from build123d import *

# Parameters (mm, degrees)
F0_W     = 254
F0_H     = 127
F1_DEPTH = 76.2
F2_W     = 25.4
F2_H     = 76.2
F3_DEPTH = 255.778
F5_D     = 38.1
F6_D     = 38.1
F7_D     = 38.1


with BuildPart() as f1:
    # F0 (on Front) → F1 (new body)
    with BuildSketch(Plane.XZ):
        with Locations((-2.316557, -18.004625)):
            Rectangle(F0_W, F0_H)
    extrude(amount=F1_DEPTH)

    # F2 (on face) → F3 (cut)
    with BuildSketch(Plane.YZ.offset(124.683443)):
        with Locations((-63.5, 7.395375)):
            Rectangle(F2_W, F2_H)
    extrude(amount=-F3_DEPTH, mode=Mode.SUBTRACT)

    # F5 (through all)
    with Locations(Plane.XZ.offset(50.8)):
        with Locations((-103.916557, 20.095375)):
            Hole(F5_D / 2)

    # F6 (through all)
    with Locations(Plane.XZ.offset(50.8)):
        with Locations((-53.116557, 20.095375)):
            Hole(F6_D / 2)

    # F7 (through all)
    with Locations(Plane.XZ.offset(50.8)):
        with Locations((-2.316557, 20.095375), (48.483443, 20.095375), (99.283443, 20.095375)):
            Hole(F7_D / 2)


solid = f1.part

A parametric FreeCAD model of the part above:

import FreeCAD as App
import Part
import Sketcher
Q = App.Units.Quantity

doc = App.newDocument("Part")
params = doc.addObject("Spreadsheet::Sheet", "Params")
for row, (alias, value) in enumerate([
    ("sketch1_width", "10 in"),
    ("sketch1_height", "5 in"),
    ("pad1_length", "3 in"),
    ("sketch2_width", "1 in"),
    ("sketch2_height", "3 in"),
    ("pocket1_length", "10.07 in"),
    ("sketch3_diameter", "1.5 in"),
    ("hole_diameter", "1.5 in"),
    ("sketch4_diameter", "1.5 in"),
    ("hole2_diameter", "1.5 in"),
    ("sketch5_diameter", "1.5 in"),
    ("hole3_diameter", "1.5 in"),
], start=1):
    params.set(f"A{row}", alias)
    params.set(f"B{row}", "=" + value)
    params.setAlias(f"B{row}", alias)

body = doc.addObject("PartDesign::Body", "Body")

sketch1 = doc.addObject("Sketcher::SketchObject", "Sketch")
body.addObject(sketch1)
sketch1.AttachmentSupport = (doc.XZ_Plane, [""])
sketch1.MapMode = "FlatFace"
sketch1.addGeometry([
    Part.LineSegment(App.Vector(-129.316557, 45.495375, 0), App.Vector(-129.316557, -81.504625, 0)),
    Part.LineSegment(App.Vector(-129.316557, -81.504625, 0), App.Vector(124.683443, -81.504625, 0)),
    Part.LineSegment(App.Vector(124.683443, -81.504625, 0), App.Vector(124.683443, 45.495375, 0)),
    Part.LineSegment(App.Vector(124.683443, 45.495375, 0), App.Vector(-129.316557, 45.495375, 0)),
], False)
sketch1.addConstraint([
    Sketcher.Constraint("Coincident", 0, 2, 1, 1),
    Sketcher.Constraint("Coincident", 1, 2, 2, 1),
    Sketcher.Constraint("Coincident", 2, 2, 3, 1),
    Sketcher.Constraint("Coincident", 3, 2, 0, 1),
    Sketcher.Constraint("Vertical", 0),
    Sketcher.Constraint("Horizontal", 1),
    Sketcher.Constraint("Vertical", 2),
    Sketcher.Constraint("Horizontal", 3),
    Sketcher.Constraint("DistanceX", 1, 1, 1, 2, Q("10 in")),
    Sketcher.Constraint("DistanceY", 0, 2, 0, 1, Q("5 in")),
    Sketcher.Constraint("DistanceX", 0, 2, -1, 1, Q("129.316557 mm")),
    Sketcher.Constraint("DistanceY", 0, 2, -1, 1, Q("81.504625 mm")),
])
sketch1.setExpression("Constraints[8]", "Params.sketch1_width")
sketch1.setExpression("Constraints[9]", "Params.sketch1_height")
pad1 = doc.addObject("PartDesign::Pad", "Pad")
body.addObject(pad1)
pad1.Profile = sketch1
pad1.setExpression("Length", "Params.pad1_length")

sketch2 = doc.addObject("Sketcher::SketchObject", "Sketch001")
body.addObject(sketch2)
sketch2.AttachmentSupport = (doc.YZ_Plane, [""])
sketch2.MapMode = "FlatFace"
sketch2.AttachmentOffset = App.Placement(App.Vector(0, 0, 124.683443), App.Rotation())
sketch2.addGeometry([
    Part.LineSegment(App.Vector(-76.2, 45.495375, 0), App.Vector(-76.2, -30.704625, 0)),
    Part.LineSegment(App.Vector(-76.2, -30.704625, 0), App.Vector(-50.8, -30.704625, 0)),
    Part.LineSegment(App.Vector(-50.8, -30.704625, 0), App.Vector(-50.8, 45.495375, 0)),
    Part.LineSegment(App.Vector(-50.8, 45.495375, 0), App.Vector(-76.2, 45.495375, 0)),
], False)
sketch2.addConstraint([
    Sketcher.Constraint("Coincident", 0, 2, 1, 1),
    Sketcher.Constraint("Coincident", 1, 2, 2, 1),
    Sketcher.Constraint("Coincident", 2, 2, 3, 1),
    Sketcher.Constraint("Coincident", 3, 2, 0, 1),
    Sketcher.Constraint("Vertical", 0),
    Sketcher.Constraint("Horizontal", 1),
    Sketcher.Constraint("Vertical", 2),
    Sketcher.Constraint("Horizontal", 3),
    Sketcher.Constraint("DistanceX", 1, 1, 1, 2, Q("1 in")),
    Sketcher.Constraint("DistanceY", 0, 2, 0, 1, Q("3 in")),
    Sketcher.Constraint("DistanceX", 0, 2, -1, 1, Q("3 in")),
    Sketcher.Constraint("DistanceY", 0, 2, -1, 1, Q("30.704625 mm")),
])
sketch2.setExpression("Constraints[8]", "Params.sketch2_width")
sketch2.setExpression("Constraints[9]", "Params.sketch2_height")
pocket1 = doc.addObject("PartDesign::Pocket", "Pocket")
body.addObject(pocket1)
pocket1.Profile = sketch2
pocket1.setExpression("Length", "Params.pocket1_length")

sketch3 = doc.addObject("Sketcher::SketchObject", "Sketch002")
body.addObject(sketch3)
sketch3.AttachmentSupport = (doc.XZ_Plane, [""])
sketch3.MapMode = "FlatFace"
sketch3.AttachmentOffset = App.Placement(App.Vector(0, 0, 2 * 25.4), App.Rotation())
sketch3.addGeometry(Part.Circle(App.Vector(-103.916557, 20.095375, 0), App.Vector(0, 0, 1), 19.05), False)
sketch3.addConstraint([
    Sketcher.Constraint("Diameter", 0, Q("1.5 in")),
    Sketcher.Constraint("DistanceX", 0, 3, -1, 1, Q("103.916557 mm")),
    Sketcher.Constraint("DistanceY", -1, 1, 0, 3, Q("20.095375 mm")),
])
sketch3.setExpression("Constraints[0]", "Params.sketch3_diameter")
doc.recompute()
hole = doc.addObject("PartDesign::Hole", "Hole")
body.addObject(hole)
hole.Profile = sketch3
hole.ThreadType = "None"
hole.setExpression("Diameter", "Params.hole_diameter")
hole.DepthType = "ThroughAll"

sketch4 = doc.addObject("Sketcher::SketchObject", "Sketch003")
body.addObject(sketch4)
sketch4.AttachmentSupport = (doc.XZ_Plane, [""])
sketch4.MapMode = "FlatFace"
sketch4.AttachmentOffset = App.Placement(App.Vector(0, 0, 2 * 25.4), App.Rotation())
sketch4.addGeometry(Part.Circle(App.Vector(-53.116557, 20.095375, 0), App.Vector(0, 0, 1), 19.05), False)
sketch4.addConstraint([
    Sketcher.Constraint("Diameter", 0, Q("1.5 in")),
    Sketcher.Constraint("DistanceX", 0, 3, -1, 1, Q("53.116557 mm")),
    Sketcher.Constraint("DistanceY", -1, 1, 0, 3, Q("20.095375 mm")),
])
sketch4.setExpression("Constraints[0]", "Params.sketch4_diameter")
doc.recompute()
hole2 = doc.addObject("PartDesign::Hole", "Hole001")
body.addObject(hole2)
hole2.Profile = sketch4
hole2.ThreadType = "None"
hole2.setExpression("Diameter", "Params.hole2_diameter")
hole2.DepthType = "ThroughAll"

sketch5 = doc.addObject("Sketcher::SketchObject", "Sketch004")
body.addObject(sketch5)
sketch5.AttachmentSupport = (doc.XZ_Plane, [""])
sketch5.MapMode = "FlatFace"
sketch5.AttachmentOffset = App.Placement(App.Vector(0, 0, 2 * 25.4), App.Rotation())
sketch5.addGeometry([
    Part.Circle(App.Vector(-2.316557, 20.095375, 0), App.Vector(0, 0, 1), 19.05),
    Part.Circle(App.Vector(48.483443, 20.095375, 0), App.Vector(0, 0, 1), 19.05),
    Part.Circle(App.Vector(99.283443, 20.095375, 0), App.Vector(0, 0, 1), 19.05),
], False)
sketch5.addConstraint([
    Sketcher.Constraint("Equal", 0, 1),
    Sketcher.Constraint("Equal", 1, 2),
    Sketcher.Constraint("Horizontal", 0, 3, 1, 3),
    Sketcher.Constraint("Horizontal", 1, 3, 2, 3),
    Sketcher.Constraint("Diameter", 0, Q("1.5 in")),
    Sketcher.Constraint("DistanceX", 0, 3, 1, 3, Q("2 in")),
    Sketcher.Constraint("DistanceX", 1, 3, 2, 3, Q("2 in")),
    Sketcher.Constraint("DistanceX", 0, 3, -1, 1, Q("2.316557 mm")),
    Sketcher.Constraint("DistanceY", -1, 1, 0, 3, Q("20.095375 mm")),
])
sketch5.setExpression("Constraints[4]", "Params.sketch5_diameter")
doc.recompute()
hole3 = doc.addObject("PartDesign::Hole", "Hole002")
body.addObject(hole3)
hole3.Profile = sketch5
hole3.ThreadType = "None"
hole3.setExpression("Diameter", "Params.hole3_diameter")
hole3.DepthType = "ThroughAll"

doc.recompute()
